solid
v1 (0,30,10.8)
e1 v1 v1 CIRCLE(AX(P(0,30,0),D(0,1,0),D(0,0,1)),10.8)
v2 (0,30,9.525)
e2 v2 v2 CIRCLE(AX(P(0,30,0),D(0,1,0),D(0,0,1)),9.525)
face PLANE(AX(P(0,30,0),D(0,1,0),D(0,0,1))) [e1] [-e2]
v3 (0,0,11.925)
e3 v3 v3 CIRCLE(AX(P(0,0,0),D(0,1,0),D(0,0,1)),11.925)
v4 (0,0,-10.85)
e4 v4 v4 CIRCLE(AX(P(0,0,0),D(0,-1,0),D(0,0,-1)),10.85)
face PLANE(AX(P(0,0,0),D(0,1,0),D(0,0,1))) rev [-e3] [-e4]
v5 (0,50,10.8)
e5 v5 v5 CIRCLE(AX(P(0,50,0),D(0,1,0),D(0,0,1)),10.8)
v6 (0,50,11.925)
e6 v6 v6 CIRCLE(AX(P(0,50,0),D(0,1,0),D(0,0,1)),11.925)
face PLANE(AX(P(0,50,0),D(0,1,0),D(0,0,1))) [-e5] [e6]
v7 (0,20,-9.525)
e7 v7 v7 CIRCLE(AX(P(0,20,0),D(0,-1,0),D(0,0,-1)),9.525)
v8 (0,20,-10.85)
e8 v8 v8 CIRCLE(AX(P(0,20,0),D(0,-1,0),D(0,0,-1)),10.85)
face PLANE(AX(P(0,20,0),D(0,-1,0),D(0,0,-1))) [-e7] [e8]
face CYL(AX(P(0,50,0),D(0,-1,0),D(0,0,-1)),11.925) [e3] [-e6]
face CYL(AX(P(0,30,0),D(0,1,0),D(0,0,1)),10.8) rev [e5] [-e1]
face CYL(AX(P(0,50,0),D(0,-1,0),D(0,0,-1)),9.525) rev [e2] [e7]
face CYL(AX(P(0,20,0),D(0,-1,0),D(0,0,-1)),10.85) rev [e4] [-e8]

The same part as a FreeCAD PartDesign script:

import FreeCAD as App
import Part
import Sketcher

doc = App.newDocument("Part")
body = doc.addObject("PartDesign::Body", "Body")

# Sketch on XZ plane
sketch1 = body.newObject("Sketcher::SketchObject", "Sketch")
sketch1.AttachmentSupport = (doc.getObject("XZ_Plane"), [""])
sketch1.MapMode = "FlatFace"
sketch1.addGeometry([
    Part.Circle(App.Vector(0, 0, 0), App.Vector(0, 0, 1), 11.925),
    Part.Circle(App.Vector(0, 0, 0), App.Vector(0, 0, 1), 9.525),
], False)
sketch1.addConstraint([
    Sketcher.Constraint("Coincident", 0, 3, -1, 1),
    Sketcher.Constraint("Coincident", 1, 3, -1, 1),
    Sketcher.Constraint("Diameter", 0, 23.85),
    Sketcher.Constraint("Diameter", 1, 19.05),
])
pad1 = body.newObject("PartDesign::Pad", "Pad")
pad1.Profile = sketch1
pad1.Length = 50
pad1.Reversed = True

# Sketch on XZ plane
sketch2 = body.newObject("Sketcher::SketchObject", "Sketch001")
sketch2.AttachmentSupport = (doc.getObject("XZ_Plane"), [""])
sketch2.MapMode = "FlatFace"
sketch2.addGeometry(Part.Circle(App.Vector(0, 0, 0), App.Vector(0, 0, 1), 10.85), False)
sketch2.addConstraint([
    Sketcher.Constraint("Coincident", 0, 3, -1, 1),
    Sketcher.Constraint("Diameter", 0, 21.7),
])
pocket1 = body.newObject("PartDesign::Pocket", "Pocket")
pocket1.Profile = sketch2
pocket1.Length = 20

# Sketch on XZ plane
sketch3 = body.newObject("Sketcher::SketchObject", "Sketch002")
sketch3.AttachmentSupport = (doc.getObject("XZ_Plane"), [""])
sketch3.MapMode = "FlatFace"
sketch3.AttachmentOffset = App.Placement(App.Vector(0, 0, -50), App.Rotation())
sketch3.addGeometry(Part.Circle(App.Vector(0, 0, 0), App.Vector(0, 0, 1), 10.8), False)
sketch3.addConstraint([
    Sketcher.Constraint("Coincident", 0, 3, -1, 1),
    Sketcher.Constraint("Diameter", 0, 21.6),
])
pocket2 = body.newObject("PartDesign::Pocket", "Pocket001")
pocket2.Profile = sketch3
pocket2.Length = 20
pocket2.Reversed = True

doc.recompute()
